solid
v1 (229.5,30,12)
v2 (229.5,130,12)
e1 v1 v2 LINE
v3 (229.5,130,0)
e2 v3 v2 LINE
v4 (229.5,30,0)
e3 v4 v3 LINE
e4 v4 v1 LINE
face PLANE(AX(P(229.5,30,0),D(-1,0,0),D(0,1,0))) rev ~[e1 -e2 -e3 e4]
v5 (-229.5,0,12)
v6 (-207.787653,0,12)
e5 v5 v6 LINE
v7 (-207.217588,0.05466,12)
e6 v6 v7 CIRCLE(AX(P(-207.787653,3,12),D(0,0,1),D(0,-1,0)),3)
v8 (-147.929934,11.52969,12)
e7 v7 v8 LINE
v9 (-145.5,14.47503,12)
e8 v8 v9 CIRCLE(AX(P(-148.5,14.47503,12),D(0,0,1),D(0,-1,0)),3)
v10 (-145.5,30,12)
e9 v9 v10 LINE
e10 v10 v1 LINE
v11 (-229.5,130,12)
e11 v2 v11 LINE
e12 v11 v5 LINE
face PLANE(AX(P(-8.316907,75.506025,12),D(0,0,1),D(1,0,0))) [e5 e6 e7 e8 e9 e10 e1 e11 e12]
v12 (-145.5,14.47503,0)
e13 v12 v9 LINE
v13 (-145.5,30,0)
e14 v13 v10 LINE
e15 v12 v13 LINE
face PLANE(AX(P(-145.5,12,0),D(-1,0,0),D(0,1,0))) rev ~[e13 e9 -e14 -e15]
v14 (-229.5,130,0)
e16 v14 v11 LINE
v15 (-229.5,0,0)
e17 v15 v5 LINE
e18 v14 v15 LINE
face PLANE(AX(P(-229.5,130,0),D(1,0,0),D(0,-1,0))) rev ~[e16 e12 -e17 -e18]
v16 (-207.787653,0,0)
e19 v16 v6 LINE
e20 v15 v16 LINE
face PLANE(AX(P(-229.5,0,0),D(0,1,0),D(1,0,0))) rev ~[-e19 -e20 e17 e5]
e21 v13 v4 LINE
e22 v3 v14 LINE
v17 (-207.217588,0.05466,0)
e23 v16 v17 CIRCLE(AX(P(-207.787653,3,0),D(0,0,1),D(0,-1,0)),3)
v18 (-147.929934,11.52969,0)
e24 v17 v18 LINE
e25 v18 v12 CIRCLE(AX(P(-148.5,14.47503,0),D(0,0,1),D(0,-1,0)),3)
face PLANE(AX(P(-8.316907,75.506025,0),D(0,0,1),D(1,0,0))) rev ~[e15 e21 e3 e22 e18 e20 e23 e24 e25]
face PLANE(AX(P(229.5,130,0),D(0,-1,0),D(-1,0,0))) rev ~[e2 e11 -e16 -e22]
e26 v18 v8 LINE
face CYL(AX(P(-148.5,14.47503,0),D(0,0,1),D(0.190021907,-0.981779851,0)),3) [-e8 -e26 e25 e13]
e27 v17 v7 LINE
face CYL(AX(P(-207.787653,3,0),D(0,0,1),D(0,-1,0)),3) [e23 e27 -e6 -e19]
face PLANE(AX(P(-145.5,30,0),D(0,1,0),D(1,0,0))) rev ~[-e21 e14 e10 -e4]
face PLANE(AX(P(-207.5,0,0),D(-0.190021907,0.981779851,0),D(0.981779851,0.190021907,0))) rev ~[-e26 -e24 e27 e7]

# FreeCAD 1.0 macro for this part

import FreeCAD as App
import Part
import Sketcher
from FreeCAD import Vector
Q = App.Units.Quantity


def edges_at(feature, points):
    """Names of the edges that pass closest to the given points."""
    edges = feature.Shape.Edges
    near = lambda p: min(range(len(edges)), key=lambda i: edges[i].distToShape(Part.Vertex(*p))[0])
    return sorted({f"Edge{near(p) + 1}" for p in points})

doc = App.newDocument("Part")
body = doc.addObject("PartDesign::Body", "Body")

# Sketch on XY plane
sketch1 = body.newObject("Sketcher::SketchObject", "Sketch")
sketch1.AttachmentSupport = (doc.getObject("XY_Plane"), [""])
sketch1.MapMode = "FlatFace"
sketch1.addGeometry(Part.LineSegment(Vector(-230, 0, 0), Vector(-208, 0, 0)), False)
sketch1.addGeometry(Part.LineSegment(Vector(-208, 0, 0), Vector(-146, 12, 0)), False)
sketch1.addGeometry(Part.LineSegment(Vector(-146, 12, 0), Vector(-146, 30, 0)), False)
sketch1.addGeometry(Part.LineSegment(Vector(-146, 30, 0), Vector(230, 30, 0)), False)
sketch1.addGeometry(Part.LineSegment(Vector(230, 30, 0), Vector(230, 130, 0)), False)
sketch1.addGeometry(Part.LineSegment(Vector(230, 130, 0), Vector(-230, 130, 0)), False)
sketch1.addGeometry(Part.LineSegment(Vector(-230, 130, 0), Vector(-230, 0, 0)), False)
sketch1.addConstraint(Sketcher.Constraint("Coincident", 0, 2, 1, 1))
sketch1.addConstraint(Sketcher.Constraint("Coincident", 1, 2, 2, 1))
sketch1.addConstraint(Sketcher.Constraint("Coincident", 2, 2, 3, 1))
sketch1.addConstraint(Sketcher.Constraint("Coincident", 3, 2, 4, 1))
sketch1.addConstraint(Sketcher.Constraint("Coincident", 4, 2, 5, 1))
sketch1.addConstraint(Sketcher.Constraint("Coincident", 5, 2, 6, 1))
sketch1.addConstraint(Sketcher.Constraint("Coincident", 6, 2, 0, 1))
sketch1.addConstraint(Sketcher.Constraint("Horizontal", 0))
sketch1.addConstraint(Sketcher.Constraint("Vertical", 2))
sketch1.addConstraint(Sketcher.Constraint("Horizontal", 3))
sketch1.addConstraint(Sketcher.Constraint("Vertical", 4))
sketch1.addConstraint(Sketcher.Constraint("Horizontal", 5))
sketch1.addConstraint(Sketcher.Constraint("Vertical", 6))
sketch1.addConstraint(Sketcher.Constraint("PointOnObject", 0, 2, -1))
sketch1.addConstraint(Sketcher.Constraint("DistanceX", 0, 1, 0, 2, Q("22 mm")))
sketch1.addConstraint(Sketcher.Constraint("DistanceX", 3, 1, 3, 2, Q("375 mm")))
sketch1.addConstraint(Sketcher.Constraint("DistanceX", 5, 2, 5, 1, Q("459 mm")))
sketch1.addConstraint(Sketcher.Constraint("DistanceY", 2, 1, 2, 2, Q("18 mm")))
sketch1.addConstraint(Sketcher.Constraint("DistanceY", 4, 1, 4, 2, Q("100 mm")))
sketch1.addConstraint(Sketcher.Constraint("DistanceY", 6, 2, 6, 1, Q("130 mm")))
sketch1.addConstraint(Sketcher.Constraint("DistanceX", 0, 2, -1, 1, Q("207.5 mm")))
pad1 = body.newObject("PartDesign::Pad", "Pad")
pad1.Profile = sketch1
pad1.Length = 12
doc.recompute()

fillet = body.newObject("PartDesign::Fillet", "Fillet")
fillet.Base = (pad1, edges_at(pad1, [(-145.5, 12, 6), (-207.5, 0, 6)]))
fillet.Radius = 3

doc.recompute()
